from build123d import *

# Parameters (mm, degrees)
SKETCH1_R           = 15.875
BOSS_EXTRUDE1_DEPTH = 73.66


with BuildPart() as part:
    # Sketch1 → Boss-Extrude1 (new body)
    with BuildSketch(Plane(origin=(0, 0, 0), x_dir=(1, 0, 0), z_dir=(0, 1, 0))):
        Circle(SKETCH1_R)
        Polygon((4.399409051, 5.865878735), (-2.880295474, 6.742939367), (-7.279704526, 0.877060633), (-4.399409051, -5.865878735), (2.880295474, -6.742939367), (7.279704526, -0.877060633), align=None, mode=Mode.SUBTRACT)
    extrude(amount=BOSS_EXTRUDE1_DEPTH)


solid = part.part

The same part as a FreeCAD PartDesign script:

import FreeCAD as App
import Part
import Sketcher
Q = App.Units.Quantity


def add_polygon(sketch, points):
    """Adds a closed chain of lines whose ends are joined by coincident constraints."""
    first, n = sketch.GeometryCount, len(points)
    for a, b in zip(points, points[1:] + points[:1]):
        sketch.addGeometry(Part.LineSegment(App.Vector(*a, 0), App.Vector(*b, 0)), False)
    for i in range(n):
        sketch.addConstraint(Sketcher.Constraint("Coincident", first + i, 2, first + (i + 1) % n, 1))

doc = App.newDocument("Part")
params = doc.addObject("Spreadsheet::Sheet", "Params")
for row, (alias, value) in enumerate([
    ("sketch1_diameter", "1.25 in"),
    ("pad1_length", "2.9 in"),
], start=1):
    params.set(f"A{row}", alias)
    params.set(f"B{row}", "=" + value)
    params.setAlias(f"B{row}", alias)

body = doc.addObject("PartDesign::Body", "Body")

sketch1 = body.newObject("Sketcher::SketchObject", "Sketch")
sketch1.AttachmentSupport = (doc.getObject("XZ_Plane"), [""])
sketch1.MapMode = "FlatFace"
sketch1.addGeometry(Part.Circle(App.Vector(0, 0, 0), App.Vector(0, 0, 1), 15.875), False)
add_polygon(sketch1, [(-2.880295, -6.742939), (4.399409, -5.865879), (7.279705, 0.877061), (2.880295, 6.742939), (-4.399409, 5.865879), (-7.279705, -0.877061)])
sketch1.addConstraint([
    Sketcher.Constraint("Coincident", 0, 3, -1, 1),
    Sketcher.Constraint("Symmetric", 1, 2, 4, 2, -1, 1),
    Sketcher.Constraint("Symmetric", 2, 2, 5, 2, -1, 1),
    Sketcher.Constraint("Symmetric", 3, 2, 6, 2, -1, 1),
    Sketcher.Constraint("Equal", 1, 2),
    Sketcher.Constraint("Equal", 2, 3),
    Sketcher.Constraint("Diameter", 0, Q("1.25 in")),
    Sketcher.Constraint("DistanceX", 5, 2, 3, 2, Q("0.4 in")),
    Sketcher.Constraint("DistanceY", 5, 2, 3, 2, Q("0.3 in")),
    Sketcher.Constraint("Distance", 1, 7.332348),
    Sketcher.Constraint("DistanceX", -1, 1, 1, 2, 4.399409),
])
sketch1.setExpression("Constraints[12]", "Params.sketch1_diameter")
pad1 = body.newObject("PartDesign::Pad", "Pad")
pad1.Profile = sketch1
pad1.setExpression("Length", "Params.pad1_length")
pad1.Reversed = True

doc.recompute()
